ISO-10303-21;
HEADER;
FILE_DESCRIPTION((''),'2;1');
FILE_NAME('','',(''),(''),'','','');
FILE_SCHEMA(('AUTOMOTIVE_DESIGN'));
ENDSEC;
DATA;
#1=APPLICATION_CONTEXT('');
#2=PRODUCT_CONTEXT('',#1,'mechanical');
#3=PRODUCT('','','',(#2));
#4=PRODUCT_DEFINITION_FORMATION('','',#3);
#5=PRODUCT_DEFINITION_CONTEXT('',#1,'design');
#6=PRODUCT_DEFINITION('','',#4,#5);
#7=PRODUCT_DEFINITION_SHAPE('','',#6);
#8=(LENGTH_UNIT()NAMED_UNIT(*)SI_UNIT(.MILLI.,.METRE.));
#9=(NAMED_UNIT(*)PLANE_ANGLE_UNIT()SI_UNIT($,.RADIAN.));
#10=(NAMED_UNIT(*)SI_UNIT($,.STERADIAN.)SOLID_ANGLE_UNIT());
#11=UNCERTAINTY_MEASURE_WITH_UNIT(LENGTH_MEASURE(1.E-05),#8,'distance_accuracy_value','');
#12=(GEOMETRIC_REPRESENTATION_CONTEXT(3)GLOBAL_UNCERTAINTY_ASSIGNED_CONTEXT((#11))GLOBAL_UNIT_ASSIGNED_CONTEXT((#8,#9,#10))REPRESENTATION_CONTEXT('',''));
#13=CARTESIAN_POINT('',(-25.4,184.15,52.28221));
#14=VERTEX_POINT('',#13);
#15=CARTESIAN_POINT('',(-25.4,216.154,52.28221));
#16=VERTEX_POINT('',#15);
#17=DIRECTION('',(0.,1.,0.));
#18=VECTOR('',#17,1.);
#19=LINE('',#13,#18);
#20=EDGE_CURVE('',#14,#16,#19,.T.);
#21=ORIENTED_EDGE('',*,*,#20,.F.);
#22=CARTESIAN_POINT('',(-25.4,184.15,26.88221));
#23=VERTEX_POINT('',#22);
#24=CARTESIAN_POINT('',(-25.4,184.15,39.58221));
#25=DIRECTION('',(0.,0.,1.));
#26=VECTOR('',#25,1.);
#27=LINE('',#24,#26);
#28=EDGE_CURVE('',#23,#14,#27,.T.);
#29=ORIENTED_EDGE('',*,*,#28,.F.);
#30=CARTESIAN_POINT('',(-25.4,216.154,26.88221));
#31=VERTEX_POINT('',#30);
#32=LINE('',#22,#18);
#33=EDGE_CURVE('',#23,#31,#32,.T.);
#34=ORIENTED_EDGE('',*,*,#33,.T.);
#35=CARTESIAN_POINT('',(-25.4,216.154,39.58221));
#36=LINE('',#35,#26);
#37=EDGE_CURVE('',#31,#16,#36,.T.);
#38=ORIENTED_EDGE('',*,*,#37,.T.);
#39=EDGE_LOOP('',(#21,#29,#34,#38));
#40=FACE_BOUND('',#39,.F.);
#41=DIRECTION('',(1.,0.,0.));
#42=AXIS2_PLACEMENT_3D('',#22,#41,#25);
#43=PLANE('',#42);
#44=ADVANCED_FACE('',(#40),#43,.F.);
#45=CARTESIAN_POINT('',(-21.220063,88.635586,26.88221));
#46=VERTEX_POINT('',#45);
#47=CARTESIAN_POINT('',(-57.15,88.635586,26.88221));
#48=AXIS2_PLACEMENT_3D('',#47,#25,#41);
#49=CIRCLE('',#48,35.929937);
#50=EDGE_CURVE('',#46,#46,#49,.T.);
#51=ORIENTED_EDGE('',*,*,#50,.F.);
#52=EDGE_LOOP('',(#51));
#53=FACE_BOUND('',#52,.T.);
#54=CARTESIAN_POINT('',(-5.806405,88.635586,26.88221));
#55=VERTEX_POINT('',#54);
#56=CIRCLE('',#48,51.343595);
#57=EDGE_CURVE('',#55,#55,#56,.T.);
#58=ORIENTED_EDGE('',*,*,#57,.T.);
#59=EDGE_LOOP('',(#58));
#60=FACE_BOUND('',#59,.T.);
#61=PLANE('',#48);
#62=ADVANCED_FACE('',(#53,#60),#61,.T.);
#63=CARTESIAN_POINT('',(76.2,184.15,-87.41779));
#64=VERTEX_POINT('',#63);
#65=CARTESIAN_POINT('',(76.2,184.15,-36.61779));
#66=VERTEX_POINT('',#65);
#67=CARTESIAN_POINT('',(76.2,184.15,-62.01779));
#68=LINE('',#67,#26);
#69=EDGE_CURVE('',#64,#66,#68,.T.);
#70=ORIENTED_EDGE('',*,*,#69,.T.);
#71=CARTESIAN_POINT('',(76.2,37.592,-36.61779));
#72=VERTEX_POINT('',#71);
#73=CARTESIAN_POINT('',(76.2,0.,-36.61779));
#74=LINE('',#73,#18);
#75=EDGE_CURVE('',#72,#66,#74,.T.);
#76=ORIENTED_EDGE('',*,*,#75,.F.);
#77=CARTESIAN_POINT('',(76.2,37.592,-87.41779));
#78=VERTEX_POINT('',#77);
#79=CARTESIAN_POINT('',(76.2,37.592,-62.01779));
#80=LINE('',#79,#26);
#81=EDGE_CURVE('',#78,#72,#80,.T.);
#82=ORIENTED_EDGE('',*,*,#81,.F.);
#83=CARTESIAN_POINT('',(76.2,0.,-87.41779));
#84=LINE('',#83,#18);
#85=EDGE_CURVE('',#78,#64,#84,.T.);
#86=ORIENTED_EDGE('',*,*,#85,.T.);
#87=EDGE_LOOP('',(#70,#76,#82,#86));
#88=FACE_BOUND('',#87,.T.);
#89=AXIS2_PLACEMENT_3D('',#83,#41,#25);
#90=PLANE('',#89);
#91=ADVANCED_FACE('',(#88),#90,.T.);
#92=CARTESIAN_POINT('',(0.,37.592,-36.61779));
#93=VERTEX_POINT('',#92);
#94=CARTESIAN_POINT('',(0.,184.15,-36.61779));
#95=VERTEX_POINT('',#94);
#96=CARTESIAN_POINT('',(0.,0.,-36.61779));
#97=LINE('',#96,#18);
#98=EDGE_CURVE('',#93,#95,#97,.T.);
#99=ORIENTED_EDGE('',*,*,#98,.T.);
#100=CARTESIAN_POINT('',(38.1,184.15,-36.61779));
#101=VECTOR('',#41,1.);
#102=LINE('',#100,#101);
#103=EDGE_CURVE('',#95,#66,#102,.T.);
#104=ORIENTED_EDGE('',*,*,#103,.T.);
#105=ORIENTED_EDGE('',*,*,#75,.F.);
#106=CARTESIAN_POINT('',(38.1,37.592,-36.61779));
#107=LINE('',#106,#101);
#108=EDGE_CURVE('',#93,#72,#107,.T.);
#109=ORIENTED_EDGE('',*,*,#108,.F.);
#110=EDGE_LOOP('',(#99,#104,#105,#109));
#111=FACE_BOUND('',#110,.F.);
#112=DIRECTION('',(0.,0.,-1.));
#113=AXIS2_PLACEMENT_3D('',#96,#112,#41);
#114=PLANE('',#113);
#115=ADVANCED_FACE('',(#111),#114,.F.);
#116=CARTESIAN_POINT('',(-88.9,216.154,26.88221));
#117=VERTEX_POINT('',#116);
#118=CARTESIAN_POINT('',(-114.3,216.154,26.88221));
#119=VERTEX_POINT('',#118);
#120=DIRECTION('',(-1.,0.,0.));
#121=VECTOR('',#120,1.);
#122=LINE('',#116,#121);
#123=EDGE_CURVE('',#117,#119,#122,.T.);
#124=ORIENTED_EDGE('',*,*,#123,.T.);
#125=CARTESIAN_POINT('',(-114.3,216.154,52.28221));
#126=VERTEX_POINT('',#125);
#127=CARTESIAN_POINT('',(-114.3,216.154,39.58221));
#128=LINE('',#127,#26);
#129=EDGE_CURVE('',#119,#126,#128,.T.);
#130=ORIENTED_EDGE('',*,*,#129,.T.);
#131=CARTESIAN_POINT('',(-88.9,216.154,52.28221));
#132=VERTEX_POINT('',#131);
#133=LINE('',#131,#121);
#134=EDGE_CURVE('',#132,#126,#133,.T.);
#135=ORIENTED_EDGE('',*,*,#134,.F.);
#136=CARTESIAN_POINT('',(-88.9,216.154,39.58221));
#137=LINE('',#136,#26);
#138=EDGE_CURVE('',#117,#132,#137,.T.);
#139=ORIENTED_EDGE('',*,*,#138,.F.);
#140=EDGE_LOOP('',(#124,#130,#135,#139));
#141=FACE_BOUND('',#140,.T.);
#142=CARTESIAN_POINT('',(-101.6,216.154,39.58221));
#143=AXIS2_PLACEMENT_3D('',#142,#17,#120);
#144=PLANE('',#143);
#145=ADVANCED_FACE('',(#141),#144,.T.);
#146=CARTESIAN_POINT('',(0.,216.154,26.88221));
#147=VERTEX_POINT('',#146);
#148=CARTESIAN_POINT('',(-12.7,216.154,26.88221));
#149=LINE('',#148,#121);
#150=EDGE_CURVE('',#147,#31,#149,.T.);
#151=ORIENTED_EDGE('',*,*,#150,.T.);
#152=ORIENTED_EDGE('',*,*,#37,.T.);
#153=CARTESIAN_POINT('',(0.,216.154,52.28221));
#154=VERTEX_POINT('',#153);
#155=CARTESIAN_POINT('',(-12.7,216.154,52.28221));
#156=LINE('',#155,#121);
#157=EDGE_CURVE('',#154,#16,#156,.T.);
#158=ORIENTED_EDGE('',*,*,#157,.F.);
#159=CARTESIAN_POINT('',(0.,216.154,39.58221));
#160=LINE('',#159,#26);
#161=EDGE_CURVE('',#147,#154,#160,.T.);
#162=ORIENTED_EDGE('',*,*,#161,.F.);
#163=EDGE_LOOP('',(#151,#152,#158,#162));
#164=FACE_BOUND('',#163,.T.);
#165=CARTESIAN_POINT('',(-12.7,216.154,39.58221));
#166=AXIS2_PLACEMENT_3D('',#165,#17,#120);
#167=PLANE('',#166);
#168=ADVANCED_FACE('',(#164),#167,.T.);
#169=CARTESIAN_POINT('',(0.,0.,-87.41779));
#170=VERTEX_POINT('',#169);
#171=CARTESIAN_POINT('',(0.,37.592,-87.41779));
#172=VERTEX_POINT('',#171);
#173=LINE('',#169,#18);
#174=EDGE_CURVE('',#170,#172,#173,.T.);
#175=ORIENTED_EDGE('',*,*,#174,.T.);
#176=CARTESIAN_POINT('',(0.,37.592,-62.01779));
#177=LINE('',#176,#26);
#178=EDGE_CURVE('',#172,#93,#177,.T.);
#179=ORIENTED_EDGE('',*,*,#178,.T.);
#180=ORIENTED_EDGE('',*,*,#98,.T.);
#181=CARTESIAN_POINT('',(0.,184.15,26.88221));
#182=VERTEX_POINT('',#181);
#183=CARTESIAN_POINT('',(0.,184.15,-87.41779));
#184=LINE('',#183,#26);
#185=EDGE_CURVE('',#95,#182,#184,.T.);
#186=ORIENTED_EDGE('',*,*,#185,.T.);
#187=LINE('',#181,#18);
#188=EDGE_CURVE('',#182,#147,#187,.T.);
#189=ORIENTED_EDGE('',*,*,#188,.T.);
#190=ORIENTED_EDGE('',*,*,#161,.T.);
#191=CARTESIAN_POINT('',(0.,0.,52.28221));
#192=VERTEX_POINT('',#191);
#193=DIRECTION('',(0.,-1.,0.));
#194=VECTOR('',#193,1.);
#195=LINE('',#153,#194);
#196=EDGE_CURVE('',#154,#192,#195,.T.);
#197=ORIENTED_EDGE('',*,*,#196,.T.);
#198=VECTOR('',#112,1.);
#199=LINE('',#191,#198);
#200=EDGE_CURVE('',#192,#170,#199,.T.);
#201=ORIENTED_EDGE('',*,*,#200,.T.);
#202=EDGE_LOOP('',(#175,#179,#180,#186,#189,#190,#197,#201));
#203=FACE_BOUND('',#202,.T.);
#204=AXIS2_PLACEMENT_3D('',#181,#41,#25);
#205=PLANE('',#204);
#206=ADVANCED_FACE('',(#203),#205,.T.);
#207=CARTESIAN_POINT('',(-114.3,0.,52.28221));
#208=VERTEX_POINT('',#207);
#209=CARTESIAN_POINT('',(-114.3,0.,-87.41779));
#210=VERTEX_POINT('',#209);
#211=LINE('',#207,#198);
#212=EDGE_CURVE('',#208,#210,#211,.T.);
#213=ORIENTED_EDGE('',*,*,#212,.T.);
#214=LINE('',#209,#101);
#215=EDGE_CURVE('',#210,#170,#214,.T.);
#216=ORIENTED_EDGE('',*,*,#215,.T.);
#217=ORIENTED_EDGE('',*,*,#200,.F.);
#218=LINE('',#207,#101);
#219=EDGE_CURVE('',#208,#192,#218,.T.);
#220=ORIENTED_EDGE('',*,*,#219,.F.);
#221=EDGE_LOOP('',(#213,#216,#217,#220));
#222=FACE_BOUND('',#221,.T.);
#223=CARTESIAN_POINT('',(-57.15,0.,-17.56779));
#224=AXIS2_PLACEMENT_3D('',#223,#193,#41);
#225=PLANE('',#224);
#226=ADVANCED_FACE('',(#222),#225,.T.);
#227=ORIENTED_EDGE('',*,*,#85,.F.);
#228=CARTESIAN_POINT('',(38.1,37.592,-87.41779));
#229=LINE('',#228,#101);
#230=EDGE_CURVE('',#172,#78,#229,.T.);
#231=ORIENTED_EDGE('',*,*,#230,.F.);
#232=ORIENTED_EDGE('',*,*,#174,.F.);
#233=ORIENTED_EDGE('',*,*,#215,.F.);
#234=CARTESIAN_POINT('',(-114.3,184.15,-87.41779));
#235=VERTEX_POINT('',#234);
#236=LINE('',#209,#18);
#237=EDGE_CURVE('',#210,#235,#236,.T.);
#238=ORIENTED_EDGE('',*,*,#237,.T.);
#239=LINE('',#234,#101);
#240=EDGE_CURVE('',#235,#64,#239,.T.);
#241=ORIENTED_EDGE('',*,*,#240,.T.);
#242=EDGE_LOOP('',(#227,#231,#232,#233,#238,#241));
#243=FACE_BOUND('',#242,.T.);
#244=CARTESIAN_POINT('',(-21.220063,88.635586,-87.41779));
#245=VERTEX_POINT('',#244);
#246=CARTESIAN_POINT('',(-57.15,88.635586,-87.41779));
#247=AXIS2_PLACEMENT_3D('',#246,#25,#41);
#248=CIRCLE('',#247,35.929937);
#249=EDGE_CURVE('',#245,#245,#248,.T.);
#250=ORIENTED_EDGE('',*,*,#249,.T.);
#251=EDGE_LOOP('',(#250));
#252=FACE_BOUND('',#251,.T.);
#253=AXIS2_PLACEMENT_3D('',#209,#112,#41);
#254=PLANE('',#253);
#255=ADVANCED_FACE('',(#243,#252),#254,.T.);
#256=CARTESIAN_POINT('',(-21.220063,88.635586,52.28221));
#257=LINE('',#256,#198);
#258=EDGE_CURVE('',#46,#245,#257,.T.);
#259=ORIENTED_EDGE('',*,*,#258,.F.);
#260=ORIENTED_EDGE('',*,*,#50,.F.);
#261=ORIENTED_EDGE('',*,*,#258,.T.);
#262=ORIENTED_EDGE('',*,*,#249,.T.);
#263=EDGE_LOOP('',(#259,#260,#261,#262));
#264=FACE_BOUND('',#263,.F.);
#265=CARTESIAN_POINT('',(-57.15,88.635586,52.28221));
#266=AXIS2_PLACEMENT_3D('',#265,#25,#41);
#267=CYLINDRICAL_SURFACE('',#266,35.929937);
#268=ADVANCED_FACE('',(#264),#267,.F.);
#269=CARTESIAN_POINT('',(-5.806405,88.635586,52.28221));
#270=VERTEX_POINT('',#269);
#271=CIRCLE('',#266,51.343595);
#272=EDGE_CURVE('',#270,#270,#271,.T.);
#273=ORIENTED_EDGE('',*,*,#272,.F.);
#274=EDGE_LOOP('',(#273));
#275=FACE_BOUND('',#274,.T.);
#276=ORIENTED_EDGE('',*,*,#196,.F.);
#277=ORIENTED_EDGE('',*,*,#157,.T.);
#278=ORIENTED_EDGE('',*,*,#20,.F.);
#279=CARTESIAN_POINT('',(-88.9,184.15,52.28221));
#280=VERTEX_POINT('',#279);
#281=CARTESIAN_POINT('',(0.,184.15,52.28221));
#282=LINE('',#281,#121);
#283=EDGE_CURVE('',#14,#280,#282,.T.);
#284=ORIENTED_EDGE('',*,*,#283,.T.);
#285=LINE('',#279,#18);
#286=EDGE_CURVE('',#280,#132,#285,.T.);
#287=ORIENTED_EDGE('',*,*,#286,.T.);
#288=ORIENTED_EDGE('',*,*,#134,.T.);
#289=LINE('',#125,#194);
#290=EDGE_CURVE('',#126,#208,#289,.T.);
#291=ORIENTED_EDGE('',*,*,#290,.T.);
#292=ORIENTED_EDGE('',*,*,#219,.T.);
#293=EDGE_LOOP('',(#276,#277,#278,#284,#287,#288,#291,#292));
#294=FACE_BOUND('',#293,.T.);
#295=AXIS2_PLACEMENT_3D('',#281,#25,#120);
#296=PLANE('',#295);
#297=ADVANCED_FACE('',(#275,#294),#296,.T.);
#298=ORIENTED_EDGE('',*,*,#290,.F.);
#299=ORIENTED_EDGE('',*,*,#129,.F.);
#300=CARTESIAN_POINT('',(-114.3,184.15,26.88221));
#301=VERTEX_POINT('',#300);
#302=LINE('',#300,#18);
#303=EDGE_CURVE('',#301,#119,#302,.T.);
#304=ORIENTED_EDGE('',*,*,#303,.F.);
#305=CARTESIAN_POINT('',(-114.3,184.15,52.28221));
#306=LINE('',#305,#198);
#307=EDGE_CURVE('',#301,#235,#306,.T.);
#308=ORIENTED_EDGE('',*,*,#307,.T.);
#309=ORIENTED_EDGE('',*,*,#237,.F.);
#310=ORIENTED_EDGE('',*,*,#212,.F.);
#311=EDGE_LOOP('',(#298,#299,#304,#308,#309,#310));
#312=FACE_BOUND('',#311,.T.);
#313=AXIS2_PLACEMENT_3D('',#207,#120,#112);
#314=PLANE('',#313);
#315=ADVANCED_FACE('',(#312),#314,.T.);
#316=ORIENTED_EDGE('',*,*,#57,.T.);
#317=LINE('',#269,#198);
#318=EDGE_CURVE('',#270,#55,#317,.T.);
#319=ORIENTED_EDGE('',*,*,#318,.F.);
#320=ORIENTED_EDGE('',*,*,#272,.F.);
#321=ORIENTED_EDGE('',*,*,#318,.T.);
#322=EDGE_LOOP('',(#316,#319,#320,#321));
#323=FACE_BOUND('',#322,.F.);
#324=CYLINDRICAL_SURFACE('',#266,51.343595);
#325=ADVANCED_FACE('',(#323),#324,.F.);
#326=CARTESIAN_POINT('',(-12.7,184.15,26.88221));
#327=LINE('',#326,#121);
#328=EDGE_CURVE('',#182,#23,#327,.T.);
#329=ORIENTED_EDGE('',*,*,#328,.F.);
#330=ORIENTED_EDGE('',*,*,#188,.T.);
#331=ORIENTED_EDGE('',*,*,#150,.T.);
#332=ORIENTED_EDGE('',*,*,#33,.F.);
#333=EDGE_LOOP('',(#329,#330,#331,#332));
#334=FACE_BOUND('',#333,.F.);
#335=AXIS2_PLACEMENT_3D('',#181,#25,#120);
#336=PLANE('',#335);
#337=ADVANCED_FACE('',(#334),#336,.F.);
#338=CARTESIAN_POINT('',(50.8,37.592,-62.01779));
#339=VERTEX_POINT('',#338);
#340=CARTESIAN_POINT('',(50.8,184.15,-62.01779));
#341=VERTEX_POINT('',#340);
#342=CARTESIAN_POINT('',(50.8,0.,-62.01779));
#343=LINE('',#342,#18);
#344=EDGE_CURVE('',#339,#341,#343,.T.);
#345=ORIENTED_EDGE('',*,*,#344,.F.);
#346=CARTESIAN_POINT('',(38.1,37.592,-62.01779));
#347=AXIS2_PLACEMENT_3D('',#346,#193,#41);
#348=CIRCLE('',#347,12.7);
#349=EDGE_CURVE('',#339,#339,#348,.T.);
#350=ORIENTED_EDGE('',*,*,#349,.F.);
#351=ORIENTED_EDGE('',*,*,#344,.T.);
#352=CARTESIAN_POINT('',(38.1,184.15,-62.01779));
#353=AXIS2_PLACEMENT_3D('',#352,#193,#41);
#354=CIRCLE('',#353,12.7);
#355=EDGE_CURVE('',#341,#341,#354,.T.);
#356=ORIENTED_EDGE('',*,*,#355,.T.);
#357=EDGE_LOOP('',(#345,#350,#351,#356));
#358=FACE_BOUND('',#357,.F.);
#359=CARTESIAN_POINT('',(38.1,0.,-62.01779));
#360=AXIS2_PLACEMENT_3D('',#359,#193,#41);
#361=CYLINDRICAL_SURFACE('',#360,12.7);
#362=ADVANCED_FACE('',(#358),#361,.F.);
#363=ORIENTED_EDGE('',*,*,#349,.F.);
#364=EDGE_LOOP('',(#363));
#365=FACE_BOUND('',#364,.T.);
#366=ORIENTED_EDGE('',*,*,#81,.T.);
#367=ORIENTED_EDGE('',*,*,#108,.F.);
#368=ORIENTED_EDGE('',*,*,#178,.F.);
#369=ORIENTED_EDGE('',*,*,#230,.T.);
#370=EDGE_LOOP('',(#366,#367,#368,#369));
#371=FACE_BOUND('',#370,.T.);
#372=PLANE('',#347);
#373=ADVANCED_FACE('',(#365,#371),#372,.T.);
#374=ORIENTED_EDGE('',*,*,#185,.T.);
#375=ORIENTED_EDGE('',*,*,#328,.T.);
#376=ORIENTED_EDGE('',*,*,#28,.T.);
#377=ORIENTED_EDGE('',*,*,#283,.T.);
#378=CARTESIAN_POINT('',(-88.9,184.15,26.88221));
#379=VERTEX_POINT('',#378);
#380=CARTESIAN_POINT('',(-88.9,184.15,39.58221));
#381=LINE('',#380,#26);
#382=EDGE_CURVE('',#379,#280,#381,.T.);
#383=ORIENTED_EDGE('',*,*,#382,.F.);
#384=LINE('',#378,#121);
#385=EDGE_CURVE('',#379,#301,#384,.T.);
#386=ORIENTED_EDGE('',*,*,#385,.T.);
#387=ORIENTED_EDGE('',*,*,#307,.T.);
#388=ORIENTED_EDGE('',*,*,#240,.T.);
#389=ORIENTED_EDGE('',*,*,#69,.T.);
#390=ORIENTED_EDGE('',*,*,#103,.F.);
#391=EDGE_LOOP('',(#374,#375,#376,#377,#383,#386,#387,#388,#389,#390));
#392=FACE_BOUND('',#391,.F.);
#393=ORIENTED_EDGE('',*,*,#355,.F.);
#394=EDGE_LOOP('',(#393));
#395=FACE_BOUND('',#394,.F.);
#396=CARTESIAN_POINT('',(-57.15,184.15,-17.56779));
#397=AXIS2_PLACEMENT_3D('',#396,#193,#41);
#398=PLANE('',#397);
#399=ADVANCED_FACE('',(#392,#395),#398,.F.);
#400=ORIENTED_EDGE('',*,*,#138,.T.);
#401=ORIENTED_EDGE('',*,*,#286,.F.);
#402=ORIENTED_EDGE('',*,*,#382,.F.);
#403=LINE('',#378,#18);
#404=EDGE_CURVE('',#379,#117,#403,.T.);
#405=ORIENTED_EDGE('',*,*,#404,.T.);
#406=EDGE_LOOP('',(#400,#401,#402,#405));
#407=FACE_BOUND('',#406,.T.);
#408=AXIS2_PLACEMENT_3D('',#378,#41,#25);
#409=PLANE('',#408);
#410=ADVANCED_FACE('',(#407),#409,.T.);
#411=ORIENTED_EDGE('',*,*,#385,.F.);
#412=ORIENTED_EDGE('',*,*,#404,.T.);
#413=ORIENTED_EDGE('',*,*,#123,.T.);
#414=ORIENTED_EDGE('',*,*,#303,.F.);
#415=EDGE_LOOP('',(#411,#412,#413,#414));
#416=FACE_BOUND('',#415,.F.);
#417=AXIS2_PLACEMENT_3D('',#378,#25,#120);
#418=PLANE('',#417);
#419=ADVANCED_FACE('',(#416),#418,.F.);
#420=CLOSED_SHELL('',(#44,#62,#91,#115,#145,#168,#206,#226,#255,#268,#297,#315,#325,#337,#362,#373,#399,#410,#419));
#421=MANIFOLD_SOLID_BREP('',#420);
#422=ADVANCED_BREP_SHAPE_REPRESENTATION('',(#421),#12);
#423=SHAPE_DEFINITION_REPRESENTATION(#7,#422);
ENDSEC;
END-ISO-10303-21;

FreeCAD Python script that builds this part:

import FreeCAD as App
import Part
import Sketcher

V = App.Vector
Q = App.Units.Quantity


def add_polygon(sketch, points):
    """Adds a closed chain of lines whose ends are joined by coincident constraints."""
    first, n = sketch.GeometryCount, len(points)
    for a, b in zip(points, points[1:] + points[:1]):
        sketch.addGeometry(Part.LineSegment(App.Vector(*a, 0), App.Vector(*b, 0)), False)
    for i in range(n):
        sketch.addConstraint(Sketcher.Constraint("Coincident", first + i, 2, first + (i + 1) % n, 1))

doc = App.newDocument("Part")
body = doc.addObject("PartDesign::Body", "Body")

sketch1 = body.newObject("Sketcher::SketchObject", "Sketch")
sketch1.AttachmentSupport = (doc.getObject("XZ_Plane"), [""])
sketch1.MapMode = "FlatFace"
add_polygon(sketch1, [(0, 52.28221), (-114.3, 52.28221), (-114.3, -87.41779), (76.2, -87.41779), (76.2, -36.61779), (0, -36.61779)])
sketch1.addGeometry(Part.Circle(V(38.1, -62.01779, 0), V(0, 0, 1), 12.7), False)
sketch1.addConstraint([
    Sketcher.Constraint("Horizontal", 0),
    Sketcher.Constraint("Vertical", 1),
    Sketcher.Constraint("Horizontal", 2),
    Sketcher.Constraint("Vertical", 3),
    Sketcher.Constraint("Horizontal", 4),
    Sketcher.Constraint("Vertical", 5),
    Sketcher.Constraint("PointOnObject", 4, 2, -2),
    Sketcher.Constraint("Diameter", 6, Q("1 in")),
    Sketcher.Constraint("DistanceX", 4, 2, 4, 1, Q("3 in")),
    Sketcher.Constraint("DistanceY", 3, 1, 3, 2, Q("2 in")),
    Sketcher.Constraint("DistanceX", 0, 2, 0, 1, Q("4.5 in")),
    Sketcher.Constraint("DistanceY", 1, 2, 1, 1, Q("5.5 in")),
    Sketcher.Constraint("DistanceX", 0, 2, 6, 3, Q("6 in")),
    Sketcher.Constraint("DistanceY", 1, 2, 6, 3, Q("1 in")),
    Sketcher.Constraint("DistanceY", 6, 3, -1, 1, 62.01779),
])
pad1 = body.newObject("PartDesign::Pad", "Pad")
pad1.Profile = sketch1
pad1.Length = Q("7.25 in")
pad1.Reversed = True

sketch2 = body.newObject("Sketcher::SketchObject", "Sketch001")
sketch2.AttachmentSupport = (doc.getObject("XY_Plane"), [""])
sketch2.MapMode = "FlatFace"
sketch2.AttachmentOffset = App.Placement(V(0, 0, 52.28221), App.Rotation())
sketch2.addGeometry([
    Part.Circle(V(-57.15, 88.635586, 0), V(0, 0, 1), 51.343595),
    Part.Circle(V(-57.15, 88.635586, 0), V(0, 0, 1), 35.929937),
], False)
sketch2.addConstraint([
    Sketcher.Constraint("Coincident", 1, 3, 0, 3),
    Sketcher.Constraint("DistanceX", 0, 3, -1, 1, Q("2.25 in")),
    Sketcher.Constraint("Diameter", 0, 102.68719),
    Sketcher.Constraint("Diameter", 1, 71.859874),
    Sketcher.Constraint("DistanceY", -1, 1, 0, 3, 88.635586),
])
pocket1 = body.newObject("PartDesign::Pocket", "Pocket")
pocket1.Profile = sketch2
pocket1.Length = Q("1 in")

sketch3 = body.newObject("Sketcher::SketchObject", "Sketch002")
sketch3.AttachmentSupport = (doc.getObject("XY_Plane"), [""])
sketch3.MapMode = "FlatFace"
sketch3.AttachmentOffset = App.Placement(V(0, 0, 52.28221), App.Rotation())
sketch3.addGeometry(Part.Circle(V(-57.15, 88.635586, 0), V(0, 0, 1), 35.929937), False)
sketch3.addConstraint([
    Sketcher.Constraint("DistanceX", 0, 3, -1, 1, Q("2.25 in")),
    Sketcher.Constraint("Diameter", 0, 71.859874),
    Sketcher.Constraint("DistanceY", -1, 1, 0, 3, 88.635586),
])
pocket2 = body.newObject("PartDesign::Pocket", "Pocket001")
pocket2.Profile = sketch3
pocket2.Length = Q("12.25 in")

sketch4 = body.newObject("Sketcher::SketchObject", "Sketch003")
sketch4.AttachmentSupport = (doc.getObject("XZ_Plane"), [""])
sketch4.MapMode = "FlatFace"
sketch4.AttachmentOffset = App.Placement(V(0, 0, -7.25 * 25.4), App.Rotation())
add_polygon(sketch4, [(0, 52.28221), (0, 26.88221), (-25.4, 26.88221), (-25.4, 52.28221)])
add_polygon(sketch4, [(-88.9, 52.28221), (-88.9, 26.88221), (-114.3, 26.88221), (-114.3, 52.28221)])
sketch4.addConstraint([
    Sketcher.Constraint("Vertical", 0),
    Sketcher.Constraint("Horizontal", 1),
    Sketcher.Constraint("Vertical", 2),
    Sketcher.Constraint("Horizontal", 3),
    Sketcher.Constraint("Vertical", 4),
    Sketcher.Constraint("Horizontal", 5),
    Sketcher.Constraint("Vertical", 6),
    Sketcher.Constraint("Horizontal", 7),
    Sketcher.Constraint("PointOnObject", 0, 2, -2),
    Sketcher.Constraint("Horizontal", 1, 2, 4, 2),
    Sketcher.Constraint("Horizontal", 3, 2, 6, 2),
    Sketcher.Constraint("Equal", 3, 5),
    Sketcher.Constraint("Equal", 7, 0),
    Sketcher.Constraint("DistanceX", 1, 2, 1, 1, Q("1 in")),
    Sketcher.Constraint("DistanceX", 4, 2, -1, 1, Q("3.5 in")),
    Sketcher.Constraint("DistanceY", -1, 1, 0, 2, 26.88221),
])
pad2 = body.newObject("PartDesign::Pad", "Pad001")
pad2.Profile = sketch4
pad2.Length = Q("1.26 in")
pad2.Reversed = True

sketch5 = body.newObject("Sketcher::SketchObject", "Sketch004")
sketch5.AttachmentSupport = (doc.getObject("XZ_Plane"), [""])
sketch5.MapMode = "FlatFace"
add_polygon(sketch5, [(0, -36.61779), (0, -87.41779), (76.2, -87.41779), (76.2, -36.61779)])
sketch5.addGeometry(Part.Circle(V(38.1, -62.01779, 0), V(0, 0, 1), 12.7), False)
sketch5.addConstraint([
    Sketcher.Constraint("Vertical", 0),
    Sketcher.Constraint("Horizontal", 1),
    Sketcher.Constraint("Vertical", 2),
    Sketcher.Constraint("Horizontal", 3),
    Sketcher.Constraint("PointOnObject", 0, 2, -2),
    Sketcher.Constraint("Diameter", 4, Q("1 in")),
    Sketcher.Constraint("DistanceX", 1, 1, 1, 2, Q("3 in")),
    Sketcher.Constraint("DistanceY", 0, 2, 0, 1, Q("2 in")),
    Sketcher.Constraint("DistanceY", 0, 2, 4, 3, Q("1 in")),
    Sketcher.Constraint("DistanceX", -1, 1, 4, 3, Q("1.5 in")),
    Sketcher.Constraint("DistanceY", 4, 3, -1, 1, 62.01779),
])
pocket3 = body.newObject("PartDesign::Pocket", "Pocket002")
pocket3.Profile = sketch5
pocket3.Length = Q("1.48 in")

sketch6 = body.newObject("Sketcher::SketchObject", "Sketch005")
sketch6.AttachmentSupport = (doc.getObject("YZ_Plane"), [""])
sketch6.MapMode = "FlatFace"
sketch6.AttachmentOffset = App.Placement(V(0, 0, -4.5 * 25.4), App.Rotation())
add_polygon(sketch6, [(0, 52.28221), (216.154, 52.28221), (216.154, 26.88221), (184.15, 26.88221), (184.15, -87.41779), (0, -87.41779)])
sketch6.addConstraint([
    Sketcher.Constraint("Horizontal", 0),
    Sketcher.Constraint("Vertical", 1),
    Sketcher.Constraint("Horizontal", 2),
    Sketcher.Constraint("Vertical", 3),
    Sketcher.Constraint("Horizontal", 4),
    Sketcher.Constraint("Vertical", 5),
    Sketcher.Constraint("PointOnObject", 4, 2, -2),
    Sketcher.Constraint("DistanceY", 1, 2, 1, 1, Q("1 in")),
    Sketcher.Constraint("DistanceY", 3, 2, 3, 1, Q("4.5 in")),
    Sketcher.Constraint("DistanceX", 0, 1, 0, 2, Q("8.51 in")),
    Sketcher.Constraint("DistanceX", 2, 2, 2, 1, Q("1.26 in")),
    Sketcher.Constraint("DistanceY", -1, 1, 0, 2, 52.28221),
])
pad3 = body.newObject("PartDesign::Pad", "Pad002")
pad3.Profile = sketch6
pad3.Length = Q("0.03 in")

doc.recompute()
